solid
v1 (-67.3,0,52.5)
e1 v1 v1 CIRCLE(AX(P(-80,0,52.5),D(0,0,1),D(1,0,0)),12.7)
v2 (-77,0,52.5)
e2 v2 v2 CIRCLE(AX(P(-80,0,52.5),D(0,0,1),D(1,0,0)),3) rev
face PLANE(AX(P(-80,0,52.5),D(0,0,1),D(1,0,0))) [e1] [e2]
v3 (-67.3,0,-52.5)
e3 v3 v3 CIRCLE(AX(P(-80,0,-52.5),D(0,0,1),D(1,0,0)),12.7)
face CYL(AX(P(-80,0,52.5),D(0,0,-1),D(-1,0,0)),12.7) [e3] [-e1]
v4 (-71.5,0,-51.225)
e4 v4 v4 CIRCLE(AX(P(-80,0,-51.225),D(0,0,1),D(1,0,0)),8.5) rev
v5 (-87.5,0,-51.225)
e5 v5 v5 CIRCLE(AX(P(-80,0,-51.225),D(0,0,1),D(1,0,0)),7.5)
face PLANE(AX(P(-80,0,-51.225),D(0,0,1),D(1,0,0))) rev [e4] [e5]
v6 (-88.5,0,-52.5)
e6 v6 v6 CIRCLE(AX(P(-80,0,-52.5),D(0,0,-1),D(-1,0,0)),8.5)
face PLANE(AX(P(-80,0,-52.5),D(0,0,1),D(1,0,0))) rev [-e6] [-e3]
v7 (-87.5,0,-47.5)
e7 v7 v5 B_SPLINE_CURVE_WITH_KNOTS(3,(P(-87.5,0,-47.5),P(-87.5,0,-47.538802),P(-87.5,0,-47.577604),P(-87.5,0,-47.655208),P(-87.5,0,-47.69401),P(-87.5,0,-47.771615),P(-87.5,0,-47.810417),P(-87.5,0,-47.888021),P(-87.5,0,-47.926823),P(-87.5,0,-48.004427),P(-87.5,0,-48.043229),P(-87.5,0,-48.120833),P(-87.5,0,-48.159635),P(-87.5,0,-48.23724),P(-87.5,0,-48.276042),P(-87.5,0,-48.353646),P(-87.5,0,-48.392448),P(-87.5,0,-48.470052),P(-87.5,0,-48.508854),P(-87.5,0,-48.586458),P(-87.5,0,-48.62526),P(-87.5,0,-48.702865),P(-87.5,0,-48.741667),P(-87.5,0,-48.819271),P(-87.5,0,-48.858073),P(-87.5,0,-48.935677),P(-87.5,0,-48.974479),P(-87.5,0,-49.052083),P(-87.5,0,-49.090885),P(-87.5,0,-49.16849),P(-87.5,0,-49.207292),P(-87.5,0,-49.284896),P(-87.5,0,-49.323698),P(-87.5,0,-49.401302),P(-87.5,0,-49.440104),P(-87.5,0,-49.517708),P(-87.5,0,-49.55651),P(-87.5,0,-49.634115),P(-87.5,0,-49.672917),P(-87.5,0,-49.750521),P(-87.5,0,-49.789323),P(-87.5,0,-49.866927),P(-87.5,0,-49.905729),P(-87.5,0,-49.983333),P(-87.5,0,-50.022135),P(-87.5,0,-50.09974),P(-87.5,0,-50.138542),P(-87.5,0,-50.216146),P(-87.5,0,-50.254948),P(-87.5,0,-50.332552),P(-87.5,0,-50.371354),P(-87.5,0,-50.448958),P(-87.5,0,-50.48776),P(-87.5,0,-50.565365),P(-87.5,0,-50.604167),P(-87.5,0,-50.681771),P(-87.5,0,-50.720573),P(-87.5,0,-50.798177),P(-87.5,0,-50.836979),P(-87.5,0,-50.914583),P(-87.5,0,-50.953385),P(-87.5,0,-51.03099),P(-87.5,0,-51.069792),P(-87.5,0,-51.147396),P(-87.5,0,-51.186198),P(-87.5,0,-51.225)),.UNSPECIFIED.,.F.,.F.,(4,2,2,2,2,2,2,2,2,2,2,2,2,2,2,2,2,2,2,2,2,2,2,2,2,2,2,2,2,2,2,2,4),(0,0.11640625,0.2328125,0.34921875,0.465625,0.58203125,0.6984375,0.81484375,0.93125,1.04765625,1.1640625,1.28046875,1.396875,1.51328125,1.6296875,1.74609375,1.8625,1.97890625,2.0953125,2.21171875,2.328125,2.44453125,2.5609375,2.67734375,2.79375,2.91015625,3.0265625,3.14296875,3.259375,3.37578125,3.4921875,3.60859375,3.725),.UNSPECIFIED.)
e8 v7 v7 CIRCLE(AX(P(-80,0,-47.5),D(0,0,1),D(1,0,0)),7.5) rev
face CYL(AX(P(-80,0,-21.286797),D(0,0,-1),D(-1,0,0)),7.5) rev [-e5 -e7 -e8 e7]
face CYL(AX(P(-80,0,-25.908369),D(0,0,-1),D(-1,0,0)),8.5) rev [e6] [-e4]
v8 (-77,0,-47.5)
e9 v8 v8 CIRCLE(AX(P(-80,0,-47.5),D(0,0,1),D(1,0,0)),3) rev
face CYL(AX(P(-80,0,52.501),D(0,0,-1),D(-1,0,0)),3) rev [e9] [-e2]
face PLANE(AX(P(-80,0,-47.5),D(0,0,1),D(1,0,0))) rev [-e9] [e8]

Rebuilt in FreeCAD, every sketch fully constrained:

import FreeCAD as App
import Part
import Sketcher

V = App.Vector
Q = App.Units.Quantity

doc = App.newDocument("Part")
body = doc.addObject("PartDesign::Body", "Body")

sketch1 = doc.addObject("Sketcher::SketchObject", "Sketch")
body.addObject(sketch1)
sketch1.AttachmentSupport = (doc.XY_Plane, [""])
sketch1.MapMode = "FlatFace"
sketch1.addGeometry(Part.Circle(V(-80, 0, 0), V(0, 0, 1), 13), False)
sketch1.addConstraint([
    Sketcher.Constraint("PointOnObject", 0, 3, -1),
    Sketcher.Constraint("Diameter", 0, Q("25.4 mm")),
    Sketcher.Constraint("DistanceX", 0, 3, -1, 1, Q("80 mm")),
])
pad1 = doc.addObject("PartDesign::Pad", "Pad")
body.addObject(pad1)
pad1.Profile = sketch1
pad1.Length = 105
pad1.Midplane = True

sketch2 = doc.addObject("Sketcher::SketchObject", "Sketch001")
body.addObject(sketch2)
sketch2.AttachmentSupport = (doc.XY_Plane, [""])
sketch2.MapMode = "FlatFace"
sketch2.AttachmentOffset = App.Placement(V(0, 0, -52.5), App.Rotation())
sketch2.addGeometry(Part.Circle(V(-80, 0, 0), V(0, 0, 1), 3), False)
sketch2.addConstraint([
    Sketcher.Constraint("PointOnObject", 0, 3, -1),
    Sketcher.Constraint("Diameter", 0, Q("6 mm")),
    Sketcher.Constraint("DistanceX", 0, 3, -1, 1, Q("80 mm")),
])
pocket1 = doc.addObject("PartDesign::Pocket", "Pocket")
body.addObject(pocket1)
pocket1.Profile = sketch2
pocket1.Type = "UpToFirst"
pocket1.Reversed = True

sketch3 = doc.addObject("Sketcher::SketchObject", "Sketch002")
body.addObject(sketch3)
sketch3.AttachmentSupport = (doc.XY_Plane, [""])
sketch3.MapMode = "FlatFace"
sketch3.AttachmentOffset = App.Placement(V(0, 0, -52.5), App.Rotation())
sketch3.addGeometry(Part.Circle(V(-80, 0, 0), V(0, 0, 1), 8), False)
sketch3.addConstraint([
    Sketcher.Constraint("PointOnObject", 0, 3, -1),
    Sketcher.Constraint("Diameter", 0, Q("17 mm")),
    Sketcher.Constraint("DistanceX", 0, 3, -1, 1, Q("80 mm")),
])
pocket2 = doc.addObject("PartDesign::Pocket", "Pocket001")
body.addObject(pocket2)
pocket2.Profile = sketch3
pocket2.Length = 1.275
pocket2.Reversed = True

sketch4 = doc.addObject("Sketcher::SketchObject", "Sketch003")
body.addObject(sketch4)
sketch4.AttachmentSupport = (doc.XY_Plane, [""])
sketch4.MapMode = "FlatFace"
sketch4.AttachmentOffset = App.Placement(V(0, 0, -52.5), App.Rotation())
sketch4.addGeometry(Part.Circle(V(-80, 0, 0), V(0, 0, 1), 8), False)
sketch4.addConstraint([
    Sketcher.Constraint("PointOnObject", 0, 3, -1),
    Sketcher.Constraint("Diameter", 0, Q("15 mm")),
    Sketcher.Constraint("DistanceX", 0, 3, -1, 1, Q("80 mm")),
])
pocket3 = doc.addObject("PartDesign::Pocket", "Pocket002")
body.addObject(pocket3)
pocket3.Profile = sketch4
pocket3.Length = 5
pocket3.Reversed = True

doc.recompute()
